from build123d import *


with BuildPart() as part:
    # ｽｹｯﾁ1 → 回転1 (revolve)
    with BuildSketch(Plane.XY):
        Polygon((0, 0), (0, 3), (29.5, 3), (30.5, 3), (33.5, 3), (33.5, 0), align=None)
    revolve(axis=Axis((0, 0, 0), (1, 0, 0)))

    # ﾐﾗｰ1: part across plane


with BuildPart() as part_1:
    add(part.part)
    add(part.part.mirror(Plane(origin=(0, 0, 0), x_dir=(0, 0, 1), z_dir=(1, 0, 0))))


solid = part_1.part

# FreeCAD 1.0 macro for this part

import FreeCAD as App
import Part
import Sketcher
from FreeCAD import Vector


def add_polygon(sketch, points):
    """Adds a closed chain of lines whose ends are joined by coincident constraints."""
    first, n = sketch.GeometryCount, len(points)
    for a, b in zip(points, points[1:] + points[:1]):
        sketch.addGeometry(Part.LineSegment(App.Vector(*a, 0), App.Vector(*b, 0)), False)
    for i in range(n):
        sketch.addConstraint(Sketcher.Constraint("Coincident", first + i, 2, first + (i + 1) % n, 1))

doc = App.newDocument("Part")
body = doc.addObject("PartDesign::Body", "Body")

# Sketch on XY plane
sketch1 = body.newObject("Sketcher::SketchObject", "Sketch")
sketch1.AttachmentSupport = (doc.getObject("XY_Plane"), [""])
sketch1.MapMode = "FlatFace"
add_polygon(sketch1, [(0, 3), (0, 0), (33.5, 0), (33.5, 3)])  # lines 0-3
sketch1.addConstraint([
    Sketcher.Constraint("Vertical", 0),
    Sketcher.Constraint("Horizontal", 1),
    Sketcher.Constraint("Vertical", 2),
    Sketcher.Constraint("Horizontal", 3),
    Sketcher.Constraint("Coincident", 0, 2, -1, 1),
    Sketcher.Constraint("DistanceY", 0, 2, 0, 1, 3.0),
    Sketcher.Constraint("DistanceX", 1, 1, 1, 2, 33.5),
])
revolution = body.newObject("PartDesign::Revolution", "Revolution")
revolution.Profile = sketch1
revolution.ReferenceAxis = (sketch1, ["H_Axis"])
revolution.Angle = 360
body2 = doc.addObject("PartDesign::Body", "Body001")
doc.recompute()

body2.BaseFeature = body
doc.recompute()

mirroring = doc.addObject("Part::Mirroring", "Mirroring")
mirroring.Source = body
mirroring.Base = Vector(0, 0, 0)
mirroring.Normal = Vector(1, 0, 0)
body3 = doc.addObject("PartDesign::Body", "Body002")
body3.BaseFeature = mirroring
boolean = body2.newObject("PartDesign::Boolean", "Boolean")
boolean.Type = "Fuse"
boolean.addObjects([body3])
doc.recompute()
mirroring.Visibility = False

doc.recompute()
